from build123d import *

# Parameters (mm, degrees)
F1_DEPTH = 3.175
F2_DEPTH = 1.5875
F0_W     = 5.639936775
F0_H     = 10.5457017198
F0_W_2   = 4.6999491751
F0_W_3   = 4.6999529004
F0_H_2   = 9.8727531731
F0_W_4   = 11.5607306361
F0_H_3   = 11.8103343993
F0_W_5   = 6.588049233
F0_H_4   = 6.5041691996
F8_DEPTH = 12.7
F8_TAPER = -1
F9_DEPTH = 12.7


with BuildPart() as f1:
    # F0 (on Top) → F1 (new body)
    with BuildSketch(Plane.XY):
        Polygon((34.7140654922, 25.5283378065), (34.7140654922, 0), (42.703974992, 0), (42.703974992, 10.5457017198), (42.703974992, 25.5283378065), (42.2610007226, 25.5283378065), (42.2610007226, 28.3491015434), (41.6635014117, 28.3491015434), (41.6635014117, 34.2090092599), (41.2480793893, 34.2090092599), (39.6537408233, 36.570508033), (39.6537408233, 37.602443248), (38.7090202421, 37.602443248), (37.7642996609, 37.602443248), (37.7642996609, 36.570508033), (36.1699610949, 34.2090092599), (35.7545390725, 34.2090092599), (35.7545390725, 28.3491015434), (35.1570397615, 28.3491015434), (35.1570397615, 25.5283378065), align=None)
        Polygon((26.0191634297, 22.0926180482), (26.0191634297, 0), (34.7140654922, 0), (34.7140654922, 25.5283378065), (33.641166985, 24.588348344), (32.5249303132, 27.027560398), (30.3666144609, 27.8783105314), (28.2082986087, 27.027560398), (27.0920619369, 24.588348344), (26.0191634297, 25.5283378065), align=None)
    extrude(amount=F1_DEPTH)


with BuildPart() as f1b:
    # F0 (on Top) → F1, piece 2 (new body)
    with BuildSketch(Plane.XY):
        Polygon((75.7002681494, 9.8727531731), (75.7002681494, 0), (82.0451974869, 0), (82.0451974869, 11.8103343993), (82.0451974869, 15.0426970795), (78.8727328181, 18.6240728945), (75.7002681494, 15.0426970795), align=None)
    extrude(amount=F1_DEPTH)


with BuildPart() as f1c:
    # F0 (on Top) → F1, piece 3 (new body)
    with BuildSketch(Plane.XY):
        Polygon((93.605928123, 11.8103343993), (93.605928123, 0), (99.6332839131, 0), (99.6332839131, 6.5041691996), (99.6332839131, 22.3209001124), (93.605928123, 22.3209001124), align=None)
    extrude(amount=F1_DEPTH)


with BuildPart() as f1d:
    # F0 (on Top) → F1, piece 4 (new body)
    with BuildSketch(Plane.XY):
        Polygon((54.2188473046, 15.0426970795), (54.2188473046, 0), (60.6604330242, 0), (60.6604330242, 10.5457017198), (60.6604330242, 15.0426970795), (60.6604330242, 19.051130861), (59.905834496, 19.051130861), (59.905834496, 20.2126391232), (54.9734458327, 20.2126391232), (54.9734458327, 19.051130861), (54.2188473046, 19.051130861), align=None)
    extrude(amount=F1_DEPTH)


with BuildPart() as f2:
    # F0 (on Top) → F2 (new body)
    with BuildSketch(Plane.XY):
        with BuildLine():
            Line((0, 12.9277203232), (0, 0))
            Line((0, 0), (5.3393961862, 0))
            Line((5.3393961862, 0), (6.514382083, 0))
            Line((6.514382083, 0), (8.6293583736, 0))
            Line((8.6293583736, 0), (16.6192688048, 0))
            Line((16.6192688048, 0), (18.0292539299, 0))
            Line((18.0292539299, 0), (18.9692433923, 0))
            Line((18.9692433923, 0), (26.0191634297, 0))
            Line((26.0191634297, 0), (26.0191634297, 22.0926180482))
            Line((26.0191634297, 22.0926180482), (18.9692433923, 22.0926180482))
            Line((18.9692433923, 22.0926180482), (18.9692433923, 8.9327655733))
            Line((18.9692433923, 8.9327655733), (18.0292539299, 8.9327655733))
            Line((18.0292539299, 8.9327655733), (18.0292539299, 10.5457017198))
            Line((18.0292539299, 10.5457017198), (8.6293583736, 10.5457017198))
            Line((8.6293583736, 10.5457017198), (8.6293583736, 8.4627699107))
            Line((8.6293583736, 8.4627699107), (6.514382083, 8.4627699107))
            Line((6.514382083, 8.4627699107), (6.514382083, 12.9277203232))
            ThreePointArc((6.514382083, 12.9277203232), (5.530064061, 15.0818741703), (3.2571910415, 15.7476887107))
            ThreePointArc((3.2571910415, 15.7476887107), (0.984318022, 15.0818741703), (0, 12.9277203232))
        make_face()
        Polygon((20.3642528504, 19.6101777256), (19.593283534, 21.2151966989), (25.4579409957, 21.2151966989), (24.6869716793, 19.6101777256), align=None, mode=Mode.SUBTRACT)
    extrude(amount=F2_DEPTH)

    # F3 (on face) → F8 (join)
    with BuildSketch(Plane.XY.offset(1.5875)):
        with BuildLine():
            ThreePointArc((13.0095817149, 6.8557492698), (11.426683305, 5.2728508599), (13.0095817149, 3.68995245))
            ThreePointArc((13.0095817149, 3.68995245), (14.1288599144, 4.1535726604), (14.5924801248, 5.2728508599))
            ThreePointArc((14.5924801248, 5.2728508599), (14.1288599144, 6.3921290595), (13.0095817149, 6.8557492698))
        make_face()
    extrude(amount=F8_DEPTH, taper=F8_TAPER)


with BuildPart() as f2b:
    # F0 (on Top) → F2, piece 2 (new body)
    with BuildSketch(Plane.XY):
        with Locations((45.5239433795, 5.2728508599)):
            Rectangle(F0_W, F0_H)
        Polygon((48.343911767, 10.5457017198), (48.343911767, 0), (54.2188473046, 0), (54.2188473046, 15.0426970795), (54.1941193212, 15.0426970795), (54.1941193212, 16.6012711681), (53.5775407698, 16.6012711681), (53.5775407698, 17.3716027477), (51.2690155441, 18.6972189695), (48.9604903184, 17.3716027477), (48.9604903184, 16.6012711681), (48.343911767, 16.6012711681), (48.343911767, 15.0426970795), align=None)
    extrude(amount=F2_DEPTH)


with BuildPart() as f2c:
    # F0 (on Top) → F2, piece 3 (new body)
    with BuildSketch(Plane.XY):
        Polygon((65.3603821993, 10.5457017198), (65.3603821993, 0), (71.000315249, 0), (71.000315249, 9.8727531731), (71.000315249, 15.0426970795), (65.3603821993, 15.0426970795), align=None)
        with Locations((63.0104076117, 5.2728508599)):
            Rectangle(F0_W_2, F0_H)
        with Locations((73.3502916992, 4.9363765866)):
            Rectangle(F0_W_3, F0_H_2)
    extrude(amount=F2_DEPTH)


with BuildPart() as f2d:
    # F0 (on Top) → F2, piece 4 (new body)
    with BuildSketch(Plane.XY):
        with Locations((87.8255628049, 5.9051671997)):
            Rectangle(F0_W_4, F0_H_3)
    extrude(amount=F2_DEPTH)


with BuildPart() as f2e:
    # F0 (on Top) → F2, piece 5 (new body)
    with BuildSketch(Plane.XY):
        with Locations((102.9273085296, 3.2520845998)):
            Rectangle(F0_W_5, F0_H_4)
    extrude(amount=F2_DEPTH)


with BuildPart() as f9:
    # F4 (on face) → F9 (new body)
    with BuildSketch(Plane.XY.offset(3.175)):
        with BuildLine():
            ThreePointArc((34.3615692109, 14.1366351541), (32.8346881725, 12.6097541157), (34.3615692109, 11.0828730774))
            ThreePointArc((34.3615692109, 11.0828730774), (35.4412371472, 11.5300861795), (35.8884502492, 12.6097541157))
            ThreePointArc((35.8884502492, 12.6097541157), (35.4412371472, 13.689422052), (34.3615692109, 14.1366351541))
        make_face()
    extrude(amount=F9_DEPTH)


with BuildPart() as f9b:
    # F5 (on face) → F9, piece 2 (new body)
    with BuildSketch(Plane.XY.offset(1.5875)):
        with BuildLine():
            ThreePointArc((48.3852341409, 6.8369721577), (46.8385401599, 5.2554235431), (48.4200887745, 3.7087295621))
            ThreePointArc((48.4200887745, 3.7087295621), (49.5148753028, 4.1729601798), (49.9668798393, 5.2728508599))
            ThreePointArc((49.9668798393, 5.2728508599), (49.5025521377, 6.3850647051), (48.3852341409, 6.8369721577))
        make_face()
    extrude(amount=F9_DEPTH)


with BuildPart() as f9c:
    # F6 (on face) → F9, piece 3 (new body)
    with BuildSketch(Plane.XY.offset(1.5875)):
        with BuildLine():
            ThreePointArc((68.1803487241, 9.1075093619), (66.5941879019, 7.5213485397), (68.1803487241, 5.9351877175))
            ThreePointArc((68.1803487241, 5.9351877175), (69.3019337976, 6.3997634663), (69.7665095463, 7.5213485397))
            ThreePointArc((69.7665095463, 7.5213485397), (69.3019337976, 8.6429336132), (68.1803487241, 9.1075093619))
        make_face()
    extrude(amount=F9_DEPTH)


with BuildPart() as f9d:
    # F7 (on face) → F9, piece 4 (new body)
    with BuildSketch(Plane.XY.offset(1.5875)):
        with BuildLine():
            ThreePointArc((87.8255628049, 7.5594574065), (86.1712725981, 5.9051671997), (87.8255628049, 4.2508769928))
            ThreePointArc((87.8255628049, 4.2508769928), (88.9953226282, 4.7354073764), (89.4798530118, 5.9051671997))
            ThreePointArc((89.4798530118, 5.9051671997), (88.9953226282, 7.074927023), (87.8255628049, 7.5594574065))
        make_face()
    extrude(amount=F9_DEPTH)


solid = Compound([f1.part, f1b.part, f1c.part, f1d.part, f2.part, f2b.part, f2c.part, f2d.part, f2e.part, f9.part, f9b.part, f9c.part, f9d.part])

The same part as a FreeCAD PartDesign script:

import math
import FreeCAD as App
import Part
import Sketcher

V = App.Vector
Q = App.Units.Quantity


def add_polygon(sketch, points):
    """Adds a closed chain of lines whose ends are joined by coincident constraints."""
    first, n = sketch.GeometryCount, len(points)
    for a, b in zip(points, points[1:] + points[:1]):
        sketch.addGeometry(Part.LineSegment(App.Vector(*a, 0), App.Vector(*b, 0)), False)
    for i in range(n):
        sketch.addConstraint(Sketcher.Constraint("Coincident", first + i, 2, first + (i + 1) % n, 1))

doc = App.newDocument("Part")
body = doc.addObject("PartDesign::Body", "Body")

# Sketch on XY plane
sketch1 = doc.addObject("Sketcher::SketchObject", "Sketch")
body.addObject(sketch1)
sketch1.AttachmentSupport = (doc.XY_Plane, [""])
sketch1.MapMode = "FlatFace"
add_polygon(sketch1, [(42.7, 0), (42.7, 25.53), (42.26, 25.53), (42.26, 28.35), (41.66, 28.35), (41.66, 34.21), (41.25, 34.21), (39.65, 36.57), (39.65, 37.6), (37.76, 37.6), (37.76, 36.57), (36.17, 34.21), (35.75, 34.21), (35.75, 28.35), (35.16, 28.35), (35.16, 25.53), (34.71, 25.53), (33.64, 24.59), (32.52, 27.03), (30.37, 27.88), (28.21, 27.03), (27.09, 24.59), (26.02, 25.53), (26.02, 0)])  # lines 0-23
sketch1.addConstraint(Sketcher.Constraint("Vertical", 0))
sketch1.addConstraint(Sketcher.Constraint("Horizontal", 1))
sketch1.addConstraint(Sketcher.Constraint("Vertical", 2))
sketch1.addConstraint(Sketcher.Constraint("Horizontal", 3))
sketch1.addConstraint(Sketcher.Constraint("Vertical", 4))
sketch1.addConstraint(Sketcher.Constraint("Horizontal", 5))
sketch1.addConstraint(Sketcher.Constraint("Vertical", 7))
sketch1.addConstraint(Sketcher.Constraint("Horizontal", 8))
sketch1.addConstraint(Sketcher.Constraint("Vertical", 9))
sketch1.addConstraint(Sketcher.Constraint("Horizontal", 11))
sketch1.addConstraint(Sketcher.Constraint("Vertical", 12))
sketch1.addConstraint(Sketcher.Constraint("Horizontal", 13))
sketch1.addConstraint(Sketcher.Constraint("Vertical", 14))
sketch1.addConstraint(Sketcher.Constraint("Horizontal", 15))
sketch1.addConstraint(Sketcher.Constraint("Vertical", 22))
sketch1.addConstraint(Sketcher.Constraint("Horizontal", 23))
sketch1.addConstraint(Sketcher.Constraint("PointOnObject", 22, 2, -1))
sketch1.addConstraint(Sketcher.Constraint("Horizontal", 6, 2, 9, 2))
sketch1.addConstraint(Sketcher.Constraint("Horizontal", 5, 2, 10, 2))
sketch1.addConstraint(Sketcher.Constraint("Horizontal", 3, 2, 12, 2))
sketch1.addConstraint(Sketcher.Constraint("Horizontal", 1, 2, 14, 2))
sketch1.addConstraint(Sketcher.Constraint("Horizontal", 17, 2, 19, 2))
sketch1.addConstraint(Sketcher.Constraint("Horizontal", 16, 2, 20, 2))
sketch1.addConstraint(Sketcher.Constraint("Horizontal", 15, 2, 21, 2))
sketch1.addConstraint(Sketcher.Constraint("Equal", 5, 11))
sketch1.addConstraint(Sketcher.Constraint("Equal", 3, 13))
sketch1.addConstraint(Sketcher.Constraint("Equal", 1, 15))
sketch1.addConstraint(Sketcher.Constraint("Equal", 6, 10))
sketch1.addConstraint(Sketcher.Constraint("Equal", 18, 19))
sketch1.addConstraint(Sketcher.Constraint("Equal", 17, 20))
sketch1.addConstraint(Sketcher.Constraint("Equal", 16, 21))
sketch1.addConstraint(Sketcher.Constraint("DistanceX", 3, 2, 3, 1, 0.597499))
sketch1.addConstraint(Sketcher.Constraint("DistanceX", 15, 2, 3, 2, Q("0.2735998 in")))
sketch1.addConstraint(Sketcher.Constraint("DistanceX", 8, 2, 8, 1, 1.889441))
sketch1.addConstraint(Sketcher.Constraint("DistanceX", 23, 1, 23, 2, 16.684812))
sketch1.addConstraint(Sketcher.Constraint("DistanceX", -1, 1, 1, 2, 42.261001))
sketch1.addConstraint(Sketcher.Constraint("DistanceY", -1, 1, 2, 2, 28.349102))
sketch1.addConstraint(Sketcher.Constraint("DistanceX", -1, 1, 8, 2, 37.7643))
sketch1.addConstraint(Sketcher.Constraint("DistanceX", -1, 1, 19, 2, 28.208299))
sketch1.addConstraint(Sketcher.Constraint("DistanceY", 5, 2, 6, 2, 2.361499))
sketch1.addConstraint(Sketcher.Constraint("DistanceX", 16, 2, 15, 2, 1.072899))
sketch1.addConstraint(Sketcher.Constraint("DistanceX", 5, 2, 5, 1, 0.415422))
sketch1.addConstraint(Sketcher.Constraint("DistanceY", 0, 1, 0, 2, 25.528338))
sketch1.addConstraint(Sketcher.Constraint("DistanceY", 4, 1, 4, 2, 5.859908))
sketch1.addConstraint(Sketcher.Constraint("DistanceY", 7, 1, 7, 2, 1.031935))
sketch1.addConstraint(Sketcher.Constraint("DistanceY", -1, 1, 16, 2, 24.588348))
sketch1.addConstraint(Sketcher.Constraint("DistanceY", -1, 1, 17, 2, 27.02756))
sketch1.addConstraint(Sketcher.Constraint("DistanceY", -1, 1, 18, 2, 27.878311))
pad1 = doc.addObject("PartDesign::Pad", "Pad")
body.addObject(pad1)
pad1.Profile = sketch1
pad1.Length = Q("0.125 in")
body2 = doc.addObject("PartDesign::Body", "Body001")

# Sketch on XY plane
sketch2 = doc.addObject("Sketcher::SketchObject", "Sketch001")
body2.addObject(sketch2)
sketch2.AttachmentSupport = (doc.getObject("XY_Plane001"), [""])
sketch2.MapMode = "FlatFace"
add_polygon(sketch2, [(75.7, 0), (82, 0), (82, 15), (78.9, 18.6), (75.7, 15)])  # lines 0-4
sketch2.addConstraint(Sketcher.Constraint("Horizontal", 0))
sketch2.addConstraint(Sketcher.Constraint("Vertical", 1))
sketch2.addConstraint(Sketcher.Constraint("Vertical", 4))
sketch2.addConstraint(Sketcher.Constraint("PointOnObject", 0, 2, -1))
sketch2.addConstraint(Sketcher.Constraint("Horizontal", 1, 2, 3, 2))
sketch2.addConstraint(Sketcher.Constraint("Equal", 2, 3))
sketch2.addConstraint(Sketcher.Constraint("DistanceX", 2, 2, 1, 2, Q("0.1249002 in")))
sketch2.addConstraint(Sketcher.Constraint("Distance", 2, 4.784432))
sketch2.addConstraint(Sketcher.Constraint("DistanceY", 1, 1, 1, 2, 15.042697))
sketch2.addConstraint(Sketcher.Constraint("DistanceX", -1, 1, 3, 2, 75.700268))
pad2 = doc.addObject("PartDesign::Pad", "Pad001")
body2.addObject(pad2)
pad2.Profile = sketch2
pad2.Length = Q("0.125 in")
body3 = doc.addObject("PartDesign::Body", "Body002")

# Sketch on XY plane
sketch3 = doc.addObject("Sketcher::SketchObject", "Sketch002")
body3.addObject(sketch3)
sketch3.AttachmentSupport = (doc.getObject("XY_Plane002"), [""])
sketch3.MapMode = "FlatFace"
add_polygon(sketch3, [(94, 0), (100, 0), (100, 22), (94, 22)])  # lines 0-3
sketch3.addConstraint(Sketcher.Constraint("Horizontal", 0))
sketch3.addConstraint(Sketcher.Constraint("Vertical", 1))
sketch3.addConstraint(Sketcher.Constraint("Horizontal", 2))
sketch3.addConstraint(Sketcher.Constraint("Vertical", 3))
sketch3.addConstraint(Sketcher.Constraint("PointOnObject", 0, 2, -1))
sketch3.addConstraint(Sketcher.Constraint("DistanceY", 1, 1, 1, 2, 22.3209))
sketch3.addConstraint(Sketcher.Constraint("DistanceX", 0, 1, 0, 2, 6.027356))
sketch3.addConstraint(Sketcher.Constraint("DistanceX", -1, 1, 2, 2, 93.605928))
pad3 = doc.addObject("PartDesign::Pad", "Pad002")
body3.addObject(pad3)
pad3.Profile = sketch3
pad3.Length = Q("0.125 in")
body4 = doc.addObject("PartDesign::Body", "Body003")

# Sketch on XY plane
sketch4 = doc.addObject("Sketcher::SketchObject", "Sketch003")
body4.addObject(sketch4)
sketch4.AttachmentSupport = (doc.getObject("XY_Plane003"), [""])
sketch4.MapMode = "FlatFace"
add_polygon(sketch4, [(54.2, 0), (60.7, 0), (60.7, 19.1), (59.9, 19.1), (59.9, 20.2), (55, 20.2), (55, 19.1), (54.2, 19.1)])  # lines 0-7
sketch4.addConstraint(Sketcher.Constraint("Horizontal", 0))
sketch4.addConstraint(Sketcher.Constraint("Vertical", 1))
sketch4.addConstraint(Sketcher.Constraint("Horizontal", 2))
sketch4.addConstraint(Sketcher.Constraint("Vertical", 3))
sketch4.addConstraint(Sketcher.Constraint("Horizontal", 4))
sketch4.addConstraint(Sketcher.Constraint("Vertical", 5))
sketch4.addConstraint(Sketcher.Constraint("Horizontal", 6))
sketch4.addConstraint(Sketcher.Constraint("Vertical", 7))
sketch4.addConstraint(Sketcher.Constraint("PointOnObject", 0, 2, -1))
sketch4.addConstraint(Sketcher.Constraint("Horizontal", 2, 2, 5, 2))
sketch4.addConstraint(Sketcher.Constraint("Equal", 2, 6))
sketch4.addConstraint(Sketcher.Constraint("DistanceX", 2, 2, 2, 1, 0.754599))
sketch4.addConstraint(Sketcher.Constraint("DistanceX", 4, 2, 4, 1, 4.932389))
sketch4.addConstraint(Sketcher.Constraint("DistanceY", 1, 1, 1, 2, 19.051131))
sketch4.addConstraint(Sketcher.Constraint("DistanceY", 3, 1, 3, 2, 1.161508))
sketch4.addConstraint(Sketcher.Constraint("DistanceX", -1, 1, 0, 2, 60.660433))
pad4 = doc.addObject("PartDesign::Pad", "Pad003")
body4.addObject(pad4)
pad4.Profile = sketch4
pad4.Length = Q("0.125 in")
body5 = doc.addObject("PartDesign::Body", "Body004")

# Sketch on XY plane
sketch5 = doc.addObject("Sketcher::SketchObject", "Sketch004")
body5.addObject(sketch5)
sketch5.AttachmentSupport = (doc.getObject("XY_Plane004"), [""])
sketch5.MapMode = "FlatFace"
sketch5.addGeometry(Part.LineSegment(V(0, 12.9, 0), V(0, 0, 0)), False)  # 0
sketch5.addGeometry(Part.LineSegment(V(0, 0, 0), V(26, 0, 0)), False)  # 1
sketch5.addGeometry(Part.LineSegment(V(26, 0, 0), V(26, 22.1, 0)), False)  # 2
sketch5.addGeometry(Part.LineSegment(V(26, 22.1, 0), V(19, 22.1, 0)), False)  # 3
sketch5.addGeometry(Part.LineSegment(V(19, 22.1, 0), V(19, 8.9, 0)), False)  # 4
sketch5.addGeometry(Part.LineSegment(V(19, 8.9, 0), V(18, 8.9, 0)), False)  # 5
sketch5.addGeometry(Part.LineSegment(V(18, 8.9, 0), V(18, 10.5, 0)), False)  # 6
sketch5.addGeometry(Part.LineSegment(V(18, 10.5, 0), V(8.6, 10.5, 0)), False)  # 7
sketch5.addGeometry(Part.LineSegment(V(8.6, 10.5, 0), V(8.6, 8.5, 0)), False)  # 8
sketch5.addGeometry(Part.LineSegment(V(8.6, 8.5, 0), V(6.5, 8.5, 0)), False)  # 9
sketch5.addGeometry(Part.LineSegment(V(6.5, 8.5, 0), V(6.5, 12.9, 0)), False)  # 10
sketch5.addGeometry(Part.ArcOfCircle(Part.Circle(V(3.7, 12.9, 0), V(0, 0, 1), 2.8), math.radians(0), math.radians(98)), False)  # 11
sketch5.addGeometry(Part.ArcOfCircle(Part.Circle(V(2.8, 12.9, 0), V(0, 0, 1), 2.8), math.radians(82), math.radians(180)), False)  # 12
add_polygon(sketch5, [(24.7, 19.6), (20.4, 19.6), (19.6, 21.2), (25.5, 21.2)])  # lines 13-16
sketch5.addConstraint(Sketcher.Constraint("Coincident", 0, 2, 1, 1))
sketch5.addConstraint(Sketcher.Constraint("Coincident", 1, 2, 2, 1))
sketch5.addConstraint(Sketcher.Constraint("Coincident", 2, 2, 3, 1))
sketch5.addConstraint(Sketcher.Constraint("Coincident", 3, 2, 4, 1))
sketch5.addConstraint(Sketcher.Constraint("Coincident", 4, 2, 5, 1))
sketch5.addConstraint(Sketcher.Constraint("Coincident", 5, 2, 6, 1))
sketch5.addConstraint(Sketcher.Constraint("Coincident", 6, 2, 7, 1))
sketch5.addConstraint(Sketcher.Constraint("Coincident", 7, 2, 8, 1))
sketch5.addConstraint(Sketcher.Constraint("Coincident", 8, 2, 9, 1))
sketch5.addConstraint(Sketcher.Constraint("Coincident", 9, 2, 10, 1))
sketch5.addConstraint(Sketcher.Constraint("Tangent", 10, 2, 11, 1))
sketch5.addConstraint(Sketcher.Constraint("Coincident", 11, 2, 12, 1))
sketch5.addConstraint(Sketcher.Constraint("Tangent", 12, 2, 0, 1))
sketch5.addConstraint(Sketcher.Constraint("Vertical", 0))
sketch5.addConstraint(Sketcher.Constraint("Horizontal", 1))
sketch5.addConstraint(Sketcher.Constraint("Vertical", 2))
sketch5.addConstraint(Sketcher.Constraint("Horizontal", 3))
sketch5.addConstraint(Sketcher.Constraint("Vertical", 4))
sketch5.addConstraint(Sketcher.Constraint("Horizontal", 5))
sketch5.addConstraint(Sketcher.Constraint("Vertical", 6))
sketch5.addConstraint(Sketcher.Constraint("Horizontal", 7))
sketch5.addConstraint(Sketcher.Constraint("Vertical", 8))
sketch5.addConstraint(Sketcher.Constraint("Horizontal", 9))
sketch5.addConstraint(Sketcher.Constraint("Vertical", 10))
sketch5.addConstraint(Sketcher.Constraint("Horizontal", 13))
sketch5.addConstraint(Sketcher.Constraint("Horizontal", 15))
sketch5.addConstraint(Sketcher.Constraint("Coincident", 0, 2, -1, 1))
sketch5.addConstraint(Sketcher.Constraint("Equal", 11, 12))
sketch5.addConstraint(Sketcher.Constraint("Horizontal", 11, 3, 12, 3))
sketch5.addConstraint(Sketcher.Constraint("Equal", 14, 16))
sketch5.addConstraint(Sketcher.Constraint("Radius", 11, 2.849313))
sketch5.addConstraint(Sketcher.Constraint("DistanceX", 3, 2, 3, 1, 7.04992))
sketch5.addConstraint(Sketcher.Constraint("DistanceX", 5, 2, 5, 1, 0.939989))
sketch5.addConstraint(Sketcher.Constraint("DistanceX", 13, 2, 13, 1, 4.322719))
sketch5.addConstraint(Sketcher.Constraint("DistanceY", 0, 2, 0, 1, 12.92772))
sketch5.addConstraint(Sketcher.Constraint("DistanceY", 2, 1, 2, 2, 22.092618))
sketch5.addConstraint(Sketcher.Constraint("DistanceY", 8, 2, 8, 1, 2.082932))
sketch5.addConstraint(Sketcher.Constraint("DistanceY", 10, 1, 10, 2, 4.46495))
sketch5.addConstraint(Sketcher.Constraint("DistanceX", 6, 2, 13, 2, 2.334999))
sketch5.addConstraint(Sketcher.Constraint("DistanceX", 1, 1, 1, 2, 26.019163))
sketch5.addConstraint(Sketcher.Constraint("DistanceX", 7, 2, 7, 1, 9.399896))
sketch5.addConstraint(Sketcher.Constraint("DistanceX", 9, 2, 9, 1, 2.114976))
sketch5.addConstraint(Sketcher.Constraint("DistanceX", 15, 1, 15, 2, 5.864657))
sketch5.addConstraint(Sketcher.Constraint("DistanceY", 4, 2, 4, 1, 13.159852))
sketch5.addConstraint(Sketcher.Constraint("DistanceY", 13, 2, 3, 2, 2.48244))
sketch5.addConstraint(Sketcher.Constraint("DistanceY", 14, 2, 3, 2, 0.877421))
pad5 = doc.addObject("PartDesign::Pad", "Pad004")
body5.addObject(pad5)
pad5.Profile = sketch5
pad5.Length = Q("0.0625 in")

# Sketch on XY plane
sketch6 = doc.addObject("Sketcher::SketchObject", "Sketch005")
body5.addObject(sketch6)
sketch6.AttachmentSupport = (doc.getObject("XY_Plane004"), [""])
sketch6.MapMode = "FlatFace"
sketch6.AttachmentOffset = App.Placement(V(0, 0, 0.0625 * 25.4), App.Rotation())
sketch6.addGeometry(Part.ArcOfCircle(Part.Circle(V(13, 5.3, 0), V(0, 0, 1), 1.6), math.radians(90), math.radians(270)), False)
sketch6.addGeometry(Part.ArcOfCircle(Part.Circle(V(13, 5.3, 0), V(0, 0, 1), 1.6), math.radians(-90), math.radians(0)), False)
sketch6.addGeometry(Part.ArcOfCircle(Part.Circle(V(13, 5.3, 0), V(0, 0, 1), 1.6), math.radians(0), math.radians(90)), False)
sketch6.addConstraint(Sketcher.Constraint("Tangent", 0, 2, 1, 1))
sketch6.addConstraint(Sketcher.Constraint("Tangent", 1, 2, 2, 1))
sketch6.addConstraint(Sketcher.Constraint("Tangent", 2, 2, 0, 1))
sketch6.addConstraint(Sketcher.Constraint("Horizontal", 2, 3, 1, 2))
sketch6.addConstraint(Sketcher.Constraint("Vertical", 2, 3, 0, 2))
sketch6.addConstraint(Sketcher.Constraint("Vertical", 0, 2, 2, 2))
sketch6.addConstraint(Sketcher.Constraint("Radius", 0, 1.582898))
sketch6.addConstraint(Sketcher.Constraint("DistanceX", -1, 1, 0, 3, 13.009582))
sketch6.addConstraint(Sketcher.Constraint("DistanceY", -1, 1, 0, 3, 5.272851))
pad6 = doc.addObject("PartDesign::Pad", "Pad005")
body5.addObject(pad6)
pad6.Profile = sketch6
pad6.Length = Q("0.5 in")
pad6.TaperAngle = 1
body6 = doc.addObject("PartDesign::Body", "Body005")

# Sketch on XY plane
sketch7 = doc.addObject("Sketcher::SketchObject", "Sketch006")
body6.addObject(sketch7)
sketch7.AttachmentSupport = (doc.getObject("XY_Plane005"), [""])
sketch7.MapMode = "FlatFace"
add_polygon(sketch7, [(42.704, 10.546), (42.704, 0), (54.219, 0), (54.219, 15.043), (54.194, 15.043), (54.194, 16.601), (53.578, 16.601), (53.578, 17.372), (51.269, 18.697), (48.96, 17.372), (48.96, 16.601), (48.344, 16.601), (48.344, 10.546)])  # lines 0-12
sketch7.addConstraint(Sketcher.Constraint("Vertical", 0))
sketch7.addConstraint(Sketcher.Constraint("Horizontal", 1))
sketch7.addConstraint(Sketcher.Constraint("Vertical", 2))
sketch7.addConstraint(Sketcher.Constraint("Horizontal", 3))
sketch7.addConstraint(Sketcher.Constraint("Vertical", 4))
sketch7.addConstraint(Sketcher.Constraint("Horizontal", 5))
sketch7.addConstraint(Sketcher.Constraint("Vertical", 6))
sketch7.addConstraint(Sketcher.Constraint("Vertical", 9))
sketch7.addConstraint(Sketcher.Constraint("Horizontal", 10))
sketch7.addConstraint(Sketcher.Constraint("Vertical", 11))
sketch7.addConstraint(Sketcher.Constraint("Horizontal", 12))
sketch7.addConstraint(Sketcher.Constraint("PointOnObject", 0, 2, -1))
sketch7.addConstraint(Sketcher.Constraint("Horizontal", 6, 2, 8, 2))
sketch7.addConstraint(Sketcher.Constraint("Horizontal", 5, 2, 9, 2))
sketch7.addConstraint(Sketcher.Constraint("Equal", 5, 10))
sketch7.addConstraint(Sketcher.Constraint("Equal", 7, 8))
sketch7.addConstraint(Sketcher.Constraint("DistanceY", 0, 2, 0, 1, 10.545702))
sketch7.addConstraint(Sketcher.Constraint("DistanceX", 5, 2, 5, 1, 0.616579))
sketch7.addConstraint(Sketcher.Constraint("DistanceY", 6, 1, 6, 2, 0.770332))
sketch7.addConstraint(Sketcher.Constraint("DistanceY", 11, 2, 11, 1, 6.055569))
sketch7.addConstraint(Sketcher.Constraint("DistanceX", 1, 1, 1, 2, 11.514872))
sketch7.addConstraint(Sketcher.Constraint("DistanceX", 3, 2, 3, 1, 0.024728))
sketch7.addConstraint(Sketcher.Constraint("DistanceX", 12, 2, 12, 1, 5.639937))
sketch7.addConstraint(Sketcher.Constraint("DistanceY", 2, 1, 2, 2, 15.042697))
sketch7.addConstraint(Sketcher.Constraint("DistanceX", -1, 1, 3, 2, 54.194119))
sketch7.addConstraint(Sketcher.Constraint("DistanceY", -1, 1, 7, 2, 18.697219))
pad7 = doc.addObject("PartDesign::Pad", "Pad006")
body6.addObject(pad7)
pad7.Profile = sketch7
pad7.Length = Q("0.0625 in")
body7 = doc.addObject("PartDesign::Body", "Body006")

# Sketch on XY plane
sketch8 = doc.addObject("Sketcher::SketchObject", "Sketch007")
body7.addObject(sketch8)
sketch8.AttachmentSupport = (doc.getObject("XY_Plane006"), [""])
sketch8.MapMode = "FlatFace"
add_polygon(sketch8, [(71, 9.9), (71, 15), (65.4, 15), (65.4, 10.5), (60.7, 10.5), (60.7, 0), (71, 0), (75.7, 0), (75.7, 9.9)])  # lines 0-8
sketch8.addConstraint(Sketcher.Constraint("Vertical", 0))
sketch8.addConstraint(Sketcher.Constraint("Horizontal", 1))
sketch8.addConstraint(Sketcher.Constraint("Vertical", 2))
sketch8.addConstraint(Sketcher.Constraint("Horizontal", 3))
sketch8.addConstraint(Sketcher.Constraint("Vertical", 4))
sketch8.addConstraint(Sketcher.Constraint("Horizontal", 5))
sketch8.addConstraint(Sketcher.Constraint("Horizontal", 6))
sketch8.addConstraint(Sketcher.Constraint("Vertical", 7))
sketch8.addConstraint(Sketcher.Constraint("Horizontal", 8))
sketch8.addConstraint(Sketcher.Constraint("PointOnObject", 4, 2, -1))
sketch8.addConstraint(Sketcher.Constraint("Vertical", 0, 2, 5, 2))
sketch8.addConstraint(Sketcher.Constraint("DistanceY", 4, 2, 4, 1, 10.545702))
sketch8.addConstraint(Sketcher.Constraint("DistanceX", 3, 2, 3, 1, 4.699949))
sketch8.addConstraint(Sketcher.Constraint("DistanceX", 1, 2, 1, 1, 5.639933))
sketch8.addConstraint(Sketcher.Constraint("DistanceX", 6, 1, 6, 2, 4.699953))
sketch8.addConstraint(Sketcher.Constraint("DistanceY", 0, 1, 0, 2, 5.169944))
sketch8.addConstraint(Sketcher.Constraint("DistanceY", 2, 2, 2, 1, 4.496995))
sketch8.addConstraint(Sketcher.Constraint("DistanceX", -1, 1, 6, 2, 75.700268))
pad8 = doc.addObject("PartDesign::Pad", "Pad007")
body7.addObject(pad8)
pad8.Profile = sketch8
pad8.Length = Q("0.0625 in")
body8 = doc.addObject("PartDesign::Body", "Body007")

# Sketch on XY plane
sketch9 = doc.addObject("Sketcher::SketchObject", "Sketch008")
body8.addObject(sketch9)
sketch9.AttachmentSupport = (doc.getObject("XY_Plane007"), [""])
sketch9.MapMode = "FlatFace"
add_polygon(sketch9, [(82, 12), (82, 0), (94, 0), (94, 12)])  # lines 0-3
sketch9.addConstraint(Sketcher.Constraint("Vertical", 0))
sketch9.addConstraint(Sketcher.Constraint("Horizontal", 1))
sketch9.addConstraint(Sketcher.Constraint("Vertical", 2))
sketch9.addConstraint(Sketcher.Constraint("Horizontal", 3))
sketch9.addConstraint(Sketcher.Constraint("PointOnObject", 0, 2, -1))
sketch9.addConstraint(Sketcher.Constraint("DistanceX", 1, 1, 1, 2, 11.560731))
sketch9.addConstraint(Sketcher.Constraint("DistanceY", 0, 2, 0, 1, 11.810334))
sketch9.addConstraint(Sketcher.Constraint("DistanceX", -1, 1, 1, 2, 93.605928))
pad9 = doc.addObject("PartDesign::Pad", "Pad008")
body8.addObject(pad9)
pad9.Profile = sketch9
pad9.Length = Q("0.0625 in")
body9 = doc.addObject("PartDesign::Body", "Body008")

# Sketch on XY plane
sketch10 = doc.addObject("Sketcher::SketchObject", "Sketch009")
body9.addObject(sketch10)
sketch10.AttachmentSupport = (doc.getObject("XY_Plane008"), [""])
sketch10.MapMode = "FlatFace"
add_polygon(sketch10, [(100, 7), (100, 0), (106, 0), (106, 7)])  # lines 0-3
sketch10.addConstraint(Sketcher.Constraint("Vertical", 0))
sketch10.addConstraint(Sketcher.Constraint("Horizontal", 1))
sketch10.addConstraint(Sketcher.Constraint("Vertical", 2))
sketch10.addConstraint(Sketcher.Constraint("Horizontal", 3))
sketch10.addConstraint(Sketcher.Constraint("PointOnObject", 0, 2, -1))
sketch10.addConstraint(Sketcher.Constraint("DistanceX", 1, 1, 1, 2, 6.588049))
sketch10.addConstraint(Sketcher.Constraint("DistanceY", 0, 2, 0, 1, 6.504169))
sketch10.addConstraint(Sketcher.Constraint("DistanceX", -1, 1, 0, 2, 99.633284))
pad10 = doc.addObject("PartDesign::Pad", "Pad009")
body9.addObject(pad10)
pad10.Profile = sketch10
pad10.Length = Q("0.0625 in")
body10 = doc.addObject("PartDesign::Body", "Body009")

# Sketch on XY plane
sketch11 = doc.addObject("Sketcher::SketchObject", "Sketch010")
body10.addObject(sketch11)
sketch11.AttachmentSupport = (doc.getObject("XY_Plane009"), [""])
sketch11.MapMode = "FlatFace"
sketch11.AttachmentOffset = App.Placement(V(0, 0, 0.125 * 25.4), App.Rotation())
sketch11.addGeometry(Part.ArcOfCircle(Part.Circle(V(34.4, 12.6, 0), V(0, 0, 1), 1.5), math.radians(90), math.radians(270)), False)
sketch11.addGeometry(Part.ArcOfCircle(Part.Circle(V(34.4, 12.6, 0), V(0, 0, 1), 1.5), math.radians(-90), math.radians(0)), False)
sketch11.addGeometry(Part.ArcOfCircle(Part.Circle(V(34.4, 12.6, 0), V(0, 0, 1), 1.5), math.radians(0), math.radians(90)), False)
sketch11.addConstraint(Sketcher.Constraint("Tangent", 0, 2, 1, 1))
sketch11.addConstraint(Sketcher.Constraint("Tangent", 1, 2, 2, 1))
sketch11.addConstraint(Sketcher.Constraint("Tangent", 2, 2, 0, 1))
sketch11.addConstraint(Sketcher.Constraint("Horizontal", 2, 3, 1, 2))
sketch11.addConstraint(Sketcher.Constraint("Vertical", 2, 3, 0, 2))
sketch11.addConstraint(Sketcher.Constraint("Vertical", 0, 2, 2, 2))
sketch11.addConstraint(Sketcher.Constraint("Radius", 0, 1.526881))
sketch11.addConstraint(Sketcher.Constraint("DistanceX", -1, 1, 0, 3, 34.361569))
sketch11.addConstraint(Sketcher.Constraint("DistanceY", -1, 1, 0, 3, 12.609754))
pad11 = doc.addObject("PartDesign::Pad", "Pad010")
body10.addObject(pad11)
pad11.Profile = sketch11
pad11.Length = Q("0.5 in")
body11 = doc.addObject("PartDesign::Body", "Body010")

# Sketch on XY plane
sketch12 = doc.addObject("Sketcher::SketchObject", "Sketch011")
body11.addObject(sketch12)
sketch12.AttachmentSupport = (doc.getObject("XY_Plane010"), [""])
sketch12.MapMode = "FlatFace"
sketch12.AttachmentOffset = App.Placement(V(0, 0, 0.0625 * 25.4), App.Rotation())
sketch12.addGeometry(Part.ArcOfCircle(Part.Circle(V(48.4, 5.3, 0), V(0, 0, 1), 1.6), math.radians(91), math.radians(271)), False)
sketch12.addGeometry(Part.ArcOfCircle(Part.Circle(V(48.4, 5.3, 0), V(0, 0, 1), 1.6), math.radians(-89), math.radians(0)), False)
sketch12.addGeometry(Part.ArcOfCircle(Part.Circle(V(48.4, 5.3, 0), V(0, 0, 1), 1.6), math.radians(0), math.radians(91)), False)
sketch12.addConstraint(Sketcher.Constraint("Tangent", 0, 2, 1, 1))
sketch12.addConstraint(Sketcher.Constraint("Tangent", 1, 2, 2, 1))
sketch12.addConstraint(Sketcher.Constraint("Tangent", 2, 2, 0, 1))
sketch12.addConstraint(Sketcher.Constraint("Horizontal", 2, 3, 1, 2))
sketch12.addConstraint(Sketcher.Constraint("Radius", 0, 1.564218))
sketch12.addConstraint(Sketcher.Constraint("DistanceX", -1, 1, 1, 2, Q("1.9672 in")))
sketch12.addConstraint(Sketcher.Constraint("DistanceY", -1, 1, 0, 3, 5.272851))
sketch12.addConstraint(Sketcher.Constraint("DistanceX", -1, 1, 0, 2, 48.420089))
sketch12.addConstraint(Sketcher.Constraint("DistanceY", 0, 3, 2, 2, 1.564121))
pad12 = doc.addObject("PartDesign::Pad", "Pad011")
body11.addObject(pad12)
pad12.Profile = sketch12
pad12.Length = Q("0.5 in")
body12 = doc.addObject("PartDesign::Body", "Body011")

# Sketch on XY plane
sketch13 = doc.addObject("Sketcher::SketchObject", "Sketch012")
body12.addObject(sketch13)
sketch13.AttachmentSupport = (doc.getObject("XY_Plane011"), [""])
sketch13.MapMode = "FlatFace"
sketch13.AttachmentOffset = App.Placement(V(0, 0, 0.0625 * 25.4), App.Rotation())
sketch13.addGeometry(Part.ArcOfCircle(Part.Circle(V(68.2, 7.5, 0), V(0, 0, 1), 1.6), math.radians(90), math.radians(270)), False)
sketch13.addGeometry(Part.ArcOfCircle(Part.Circle(V(68.2, 7.5, 0), V(0, 0, 1), 1.6), math.radians(-90), math.radians(0)), False)
sketch13.addGeometry(Part.ArcOfCircle(Part.Circle(V(68.2, 7.5, 0), V(0, 0, 1), 1.6), math.radians(0), math.radians(90)), False)
sketch13.addConstraint(Sketcher.Constraint("Tangent", 0, 2, 1, 1))
sketch13.addConstraint(Sketcher.Constraint("Tangent", 1, 2, 2, 1))
sketch13.addConstraint(Sketcher.Constraint("Tangent", 2, 2, 0, 1))
sketch13.addConstraint(Sketcher.Constraint("Horizontal", 2, 3, 1, 2))
sketch13.addConstraint(Sketcher.Constraint("Vertical", 2, 3, 0, 2))
sketch13.addConstraint(Sketcher.Constraint("Vertical", 0, 2, 2, 2))
sketch13.addConstraint(Sketcher.Constraint("Radius", 0, 1.586161))
sketch13.addConstraint(Sketcher.Constraint("DistanceX", -1, 1, 0, 3, 68.180349))
sketch13.addConstraint(Sketcher.Constraint("DistanceY", -1, 1, 0, 3, 7.521349))
pad13 = doc.addObject("PartDesign::Pad", "Pad012")
body12.addObject(pad13)
pad13.Profile = sketch13
pad13.Length = Q("0.5 in")
body13 = doc.addObject("PartDesign::Body", "Body012")

# Sketch on XY plane
sketch14 = doc.addObject("Sketcher::SketchObject", "Sketch013")
body13.addObject(sketch14)
sketch14.AttachmentSupport = (doc.getObject("XY_Plane012"), [""])
sketch14.MapMode = "FlatFace"
sketch14.AttachmentOffset = App.Placement(V(0, 0, 0.0625 * 25.4), App.Rotation())
sketch14.addGeometry(Part.ArcOfCircle(Part.Circle(V(87.8, 5.9, 0), V(0, 0, 1), 1.7), math.radians(90), math.radians(270)), False)
sketch14.addGeometry(Part.ArcOfCircle(Part.Circle(V(87.8, 5.9, 0), V(0, 0, 1), 1.7), math.radians(-90), math.radians(0)), False)
sketch14.addGeometry(Part.ArcOfCircle(Part.Circle(V(87.8, 5.9, 0), V(0, 0, 1), 1.7), math.radians(0), math.radians(90)), False)
sketch14.addConstraint(Sketcher.Constraint("Tangent", 0, 2, 1, 1))
sketch14.addConstraint(Sketcher.Constraint("Tangent", 1, 2, 2, 1))
sketch14.addConstraint(Sketcher.Constraint("Tangent", 2, 2, 0, 1))
sketch14.addConstraint(Sketcher.Constraint("Horizontal", 2, 3, 1, 2))
sketch14.addConstraint(Sketcher.Constraint("Vertical", 2, 3, 0, 2))
sketch14.addConstraint(Sketcher.Constraint("Vertical", 0, 2, 2, 2))
sketch14.addConstraint(Sketcher.Constraint("Radius", 0, 1.65429))
sketch14.addConstraint(Sketcher.Constraint("DistanceX", -1, 1, 0, 3, 87.825563))
sketch14.addConstraint(Sketcher.Constraint("DistanceY", -1, 1, 0, 3, 5.905167))
pad14 = doc.addObject("PartDesign::Pad", "Pad013")
body13.addObject(pad14)
pad14.Profile = sketch14
pad14.Length = Q("0.5 in")

doc.recompute()
